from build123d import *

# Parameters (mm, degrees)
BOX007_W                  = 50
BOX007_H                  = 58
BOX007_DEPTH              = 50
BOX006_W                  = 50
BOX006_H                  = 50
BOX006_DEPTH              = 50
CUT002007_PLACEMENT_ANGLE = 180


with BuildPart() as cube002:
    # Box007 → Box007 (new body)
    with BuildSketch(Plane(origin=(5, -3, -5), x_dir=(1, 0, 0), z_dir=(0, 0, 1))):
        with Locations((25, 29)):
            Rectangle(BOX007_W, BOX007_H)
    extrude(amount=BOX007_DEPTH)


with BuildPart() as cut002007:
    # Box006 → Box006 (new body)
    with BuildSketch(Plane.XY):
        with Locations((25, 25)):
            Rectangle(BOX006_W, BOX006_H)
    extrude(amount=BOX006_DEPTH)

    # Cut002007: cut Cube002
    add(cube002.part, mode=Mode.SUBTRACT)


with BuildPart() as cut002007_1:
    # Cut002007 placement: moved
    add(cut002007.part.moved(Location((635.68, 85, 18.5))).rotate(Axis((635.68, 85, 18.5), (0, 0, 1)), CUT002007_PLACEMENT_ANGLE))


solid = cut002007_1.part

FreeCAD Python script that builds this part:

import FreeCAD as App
import Part
import Sketcher

V = App.Vector


def add_polygon(sketch, points):
    """Adds a closed chain of lines whose ends are joined by coincident constraints."""
    first, n = sketch.GeometryCount, len(points)
    for a, b in zip(points, points[1:] + points[:1]):
        sketch.addGeometry(Part.LineSegment(App.Vector(*a, 0), App.Vector(*b, 0)), False)
    for i in range(n):
        sketch.addConstraint(Sketcher.Constraint("Coincident", first + i, 2, first + (i + 1) % n, 1))

doc = App.newDocument("Part")
body = doc.addObject("PartDesign::Body", "Body")

sketch1 = body.newObject("Sketcher::SketchObject", "Sketch")
sketch1.AttachmentSupport = (doc.getObject("XY_Plane"), [""])
sketch1.MapMode = "FlatFace"
sketch1.AttachmentOffset = App.Placement(V(0, 0, -5), App.Rotation())
add_polygon(sketch1, [(5, 55), (5, -3), (55, -3), (55, 55)])
sketch1.addConstraint(Sketcher.Constraint("Vertical", 0))
sketch1.addConstraint(Sketcher.Constraint("Horizontal", 1))
sketch1.addConstraint(Sketcher.Constraint("Vertical", 2))
sketch1.addConstraint(Sketcher.Constraint("Horizontal", 3))
sketch1.addConstraint(Sketcher.Constraint("DistanceX", 1, 1, 1, 2, 50.0))
sketch1.addConstraint(Sketcher.Constraint("DistanceY", 0, 2, 0, 1, 58.0))
sketch1.addConstraint(Sketcher.Constraint("DistanceX", -1, 1, 0, 2, 5.0))
sketch1.addConstraint(Sketcher.Constraint("DistanceY", 0, 2, -1, 1, 3.0))
pad1 = body.newObject("PartDesign::Pad", "Pad")
pad1.Profile = sketch1
pad1.Length = 50
body2 = doc.addObject("PartDesign::Body", "Body001")

sketch2 = body2.newObject("Sketcher::SketchObject", "Sketch001")
sketch2.AttachmentSupport = (doc.getObject("XY_Plane001"), [""])
sketch2.MapMode = "FlatFace"
add_polygon(sketch2, [(0, 50), (0, 0), (50, 0), (50, 50)])
sketch2.addConstraint(Sketcher.Constraint("Vertical", 0))
sketch2.addConstraint(Sketcher.Constraint("Horizontal", 1))
sketch2.addConstraint(Sketcher.Constraint("Vertical", 2))
sketch2.addConstraint(Sketcher.Constraint("Horizontal", 3))
sketch2.addConstraint(Sketcher.Constraint("Coincident", 0, 2, -1, 1))
sketch2.addConstraint(Sketcher.Constraint("Equal", 3, 0))
sketch2.addConstraint(Sketcher.Constraint("DistanceX", 1, 1, 1, 2, 50.0))
pad2 = body2.newObject("PartDesign::Pad", "Pad001")
pad2.Profile = sketch2
pad2.Length = 50
doc.recompute()

boolean = body2.newObject("PartDesign::Boolean", "Boolean")
boolean.Type = "Cut"
boolean.addObjects([body])
body3 = doc.addObject("PartDesign::Body", "Body002")
doc.recompute()

body2.Placement = App.Placement(V(635.68, 85, 18.5), App.Rotation(V(0, 0, 1), 180))
boolean2 = body3.newObject("PartDesign::Boolean", "Boolean001")
boolean2.Type = "Fuse"
boolean2.addObjects([body2])

doc.recompute()
